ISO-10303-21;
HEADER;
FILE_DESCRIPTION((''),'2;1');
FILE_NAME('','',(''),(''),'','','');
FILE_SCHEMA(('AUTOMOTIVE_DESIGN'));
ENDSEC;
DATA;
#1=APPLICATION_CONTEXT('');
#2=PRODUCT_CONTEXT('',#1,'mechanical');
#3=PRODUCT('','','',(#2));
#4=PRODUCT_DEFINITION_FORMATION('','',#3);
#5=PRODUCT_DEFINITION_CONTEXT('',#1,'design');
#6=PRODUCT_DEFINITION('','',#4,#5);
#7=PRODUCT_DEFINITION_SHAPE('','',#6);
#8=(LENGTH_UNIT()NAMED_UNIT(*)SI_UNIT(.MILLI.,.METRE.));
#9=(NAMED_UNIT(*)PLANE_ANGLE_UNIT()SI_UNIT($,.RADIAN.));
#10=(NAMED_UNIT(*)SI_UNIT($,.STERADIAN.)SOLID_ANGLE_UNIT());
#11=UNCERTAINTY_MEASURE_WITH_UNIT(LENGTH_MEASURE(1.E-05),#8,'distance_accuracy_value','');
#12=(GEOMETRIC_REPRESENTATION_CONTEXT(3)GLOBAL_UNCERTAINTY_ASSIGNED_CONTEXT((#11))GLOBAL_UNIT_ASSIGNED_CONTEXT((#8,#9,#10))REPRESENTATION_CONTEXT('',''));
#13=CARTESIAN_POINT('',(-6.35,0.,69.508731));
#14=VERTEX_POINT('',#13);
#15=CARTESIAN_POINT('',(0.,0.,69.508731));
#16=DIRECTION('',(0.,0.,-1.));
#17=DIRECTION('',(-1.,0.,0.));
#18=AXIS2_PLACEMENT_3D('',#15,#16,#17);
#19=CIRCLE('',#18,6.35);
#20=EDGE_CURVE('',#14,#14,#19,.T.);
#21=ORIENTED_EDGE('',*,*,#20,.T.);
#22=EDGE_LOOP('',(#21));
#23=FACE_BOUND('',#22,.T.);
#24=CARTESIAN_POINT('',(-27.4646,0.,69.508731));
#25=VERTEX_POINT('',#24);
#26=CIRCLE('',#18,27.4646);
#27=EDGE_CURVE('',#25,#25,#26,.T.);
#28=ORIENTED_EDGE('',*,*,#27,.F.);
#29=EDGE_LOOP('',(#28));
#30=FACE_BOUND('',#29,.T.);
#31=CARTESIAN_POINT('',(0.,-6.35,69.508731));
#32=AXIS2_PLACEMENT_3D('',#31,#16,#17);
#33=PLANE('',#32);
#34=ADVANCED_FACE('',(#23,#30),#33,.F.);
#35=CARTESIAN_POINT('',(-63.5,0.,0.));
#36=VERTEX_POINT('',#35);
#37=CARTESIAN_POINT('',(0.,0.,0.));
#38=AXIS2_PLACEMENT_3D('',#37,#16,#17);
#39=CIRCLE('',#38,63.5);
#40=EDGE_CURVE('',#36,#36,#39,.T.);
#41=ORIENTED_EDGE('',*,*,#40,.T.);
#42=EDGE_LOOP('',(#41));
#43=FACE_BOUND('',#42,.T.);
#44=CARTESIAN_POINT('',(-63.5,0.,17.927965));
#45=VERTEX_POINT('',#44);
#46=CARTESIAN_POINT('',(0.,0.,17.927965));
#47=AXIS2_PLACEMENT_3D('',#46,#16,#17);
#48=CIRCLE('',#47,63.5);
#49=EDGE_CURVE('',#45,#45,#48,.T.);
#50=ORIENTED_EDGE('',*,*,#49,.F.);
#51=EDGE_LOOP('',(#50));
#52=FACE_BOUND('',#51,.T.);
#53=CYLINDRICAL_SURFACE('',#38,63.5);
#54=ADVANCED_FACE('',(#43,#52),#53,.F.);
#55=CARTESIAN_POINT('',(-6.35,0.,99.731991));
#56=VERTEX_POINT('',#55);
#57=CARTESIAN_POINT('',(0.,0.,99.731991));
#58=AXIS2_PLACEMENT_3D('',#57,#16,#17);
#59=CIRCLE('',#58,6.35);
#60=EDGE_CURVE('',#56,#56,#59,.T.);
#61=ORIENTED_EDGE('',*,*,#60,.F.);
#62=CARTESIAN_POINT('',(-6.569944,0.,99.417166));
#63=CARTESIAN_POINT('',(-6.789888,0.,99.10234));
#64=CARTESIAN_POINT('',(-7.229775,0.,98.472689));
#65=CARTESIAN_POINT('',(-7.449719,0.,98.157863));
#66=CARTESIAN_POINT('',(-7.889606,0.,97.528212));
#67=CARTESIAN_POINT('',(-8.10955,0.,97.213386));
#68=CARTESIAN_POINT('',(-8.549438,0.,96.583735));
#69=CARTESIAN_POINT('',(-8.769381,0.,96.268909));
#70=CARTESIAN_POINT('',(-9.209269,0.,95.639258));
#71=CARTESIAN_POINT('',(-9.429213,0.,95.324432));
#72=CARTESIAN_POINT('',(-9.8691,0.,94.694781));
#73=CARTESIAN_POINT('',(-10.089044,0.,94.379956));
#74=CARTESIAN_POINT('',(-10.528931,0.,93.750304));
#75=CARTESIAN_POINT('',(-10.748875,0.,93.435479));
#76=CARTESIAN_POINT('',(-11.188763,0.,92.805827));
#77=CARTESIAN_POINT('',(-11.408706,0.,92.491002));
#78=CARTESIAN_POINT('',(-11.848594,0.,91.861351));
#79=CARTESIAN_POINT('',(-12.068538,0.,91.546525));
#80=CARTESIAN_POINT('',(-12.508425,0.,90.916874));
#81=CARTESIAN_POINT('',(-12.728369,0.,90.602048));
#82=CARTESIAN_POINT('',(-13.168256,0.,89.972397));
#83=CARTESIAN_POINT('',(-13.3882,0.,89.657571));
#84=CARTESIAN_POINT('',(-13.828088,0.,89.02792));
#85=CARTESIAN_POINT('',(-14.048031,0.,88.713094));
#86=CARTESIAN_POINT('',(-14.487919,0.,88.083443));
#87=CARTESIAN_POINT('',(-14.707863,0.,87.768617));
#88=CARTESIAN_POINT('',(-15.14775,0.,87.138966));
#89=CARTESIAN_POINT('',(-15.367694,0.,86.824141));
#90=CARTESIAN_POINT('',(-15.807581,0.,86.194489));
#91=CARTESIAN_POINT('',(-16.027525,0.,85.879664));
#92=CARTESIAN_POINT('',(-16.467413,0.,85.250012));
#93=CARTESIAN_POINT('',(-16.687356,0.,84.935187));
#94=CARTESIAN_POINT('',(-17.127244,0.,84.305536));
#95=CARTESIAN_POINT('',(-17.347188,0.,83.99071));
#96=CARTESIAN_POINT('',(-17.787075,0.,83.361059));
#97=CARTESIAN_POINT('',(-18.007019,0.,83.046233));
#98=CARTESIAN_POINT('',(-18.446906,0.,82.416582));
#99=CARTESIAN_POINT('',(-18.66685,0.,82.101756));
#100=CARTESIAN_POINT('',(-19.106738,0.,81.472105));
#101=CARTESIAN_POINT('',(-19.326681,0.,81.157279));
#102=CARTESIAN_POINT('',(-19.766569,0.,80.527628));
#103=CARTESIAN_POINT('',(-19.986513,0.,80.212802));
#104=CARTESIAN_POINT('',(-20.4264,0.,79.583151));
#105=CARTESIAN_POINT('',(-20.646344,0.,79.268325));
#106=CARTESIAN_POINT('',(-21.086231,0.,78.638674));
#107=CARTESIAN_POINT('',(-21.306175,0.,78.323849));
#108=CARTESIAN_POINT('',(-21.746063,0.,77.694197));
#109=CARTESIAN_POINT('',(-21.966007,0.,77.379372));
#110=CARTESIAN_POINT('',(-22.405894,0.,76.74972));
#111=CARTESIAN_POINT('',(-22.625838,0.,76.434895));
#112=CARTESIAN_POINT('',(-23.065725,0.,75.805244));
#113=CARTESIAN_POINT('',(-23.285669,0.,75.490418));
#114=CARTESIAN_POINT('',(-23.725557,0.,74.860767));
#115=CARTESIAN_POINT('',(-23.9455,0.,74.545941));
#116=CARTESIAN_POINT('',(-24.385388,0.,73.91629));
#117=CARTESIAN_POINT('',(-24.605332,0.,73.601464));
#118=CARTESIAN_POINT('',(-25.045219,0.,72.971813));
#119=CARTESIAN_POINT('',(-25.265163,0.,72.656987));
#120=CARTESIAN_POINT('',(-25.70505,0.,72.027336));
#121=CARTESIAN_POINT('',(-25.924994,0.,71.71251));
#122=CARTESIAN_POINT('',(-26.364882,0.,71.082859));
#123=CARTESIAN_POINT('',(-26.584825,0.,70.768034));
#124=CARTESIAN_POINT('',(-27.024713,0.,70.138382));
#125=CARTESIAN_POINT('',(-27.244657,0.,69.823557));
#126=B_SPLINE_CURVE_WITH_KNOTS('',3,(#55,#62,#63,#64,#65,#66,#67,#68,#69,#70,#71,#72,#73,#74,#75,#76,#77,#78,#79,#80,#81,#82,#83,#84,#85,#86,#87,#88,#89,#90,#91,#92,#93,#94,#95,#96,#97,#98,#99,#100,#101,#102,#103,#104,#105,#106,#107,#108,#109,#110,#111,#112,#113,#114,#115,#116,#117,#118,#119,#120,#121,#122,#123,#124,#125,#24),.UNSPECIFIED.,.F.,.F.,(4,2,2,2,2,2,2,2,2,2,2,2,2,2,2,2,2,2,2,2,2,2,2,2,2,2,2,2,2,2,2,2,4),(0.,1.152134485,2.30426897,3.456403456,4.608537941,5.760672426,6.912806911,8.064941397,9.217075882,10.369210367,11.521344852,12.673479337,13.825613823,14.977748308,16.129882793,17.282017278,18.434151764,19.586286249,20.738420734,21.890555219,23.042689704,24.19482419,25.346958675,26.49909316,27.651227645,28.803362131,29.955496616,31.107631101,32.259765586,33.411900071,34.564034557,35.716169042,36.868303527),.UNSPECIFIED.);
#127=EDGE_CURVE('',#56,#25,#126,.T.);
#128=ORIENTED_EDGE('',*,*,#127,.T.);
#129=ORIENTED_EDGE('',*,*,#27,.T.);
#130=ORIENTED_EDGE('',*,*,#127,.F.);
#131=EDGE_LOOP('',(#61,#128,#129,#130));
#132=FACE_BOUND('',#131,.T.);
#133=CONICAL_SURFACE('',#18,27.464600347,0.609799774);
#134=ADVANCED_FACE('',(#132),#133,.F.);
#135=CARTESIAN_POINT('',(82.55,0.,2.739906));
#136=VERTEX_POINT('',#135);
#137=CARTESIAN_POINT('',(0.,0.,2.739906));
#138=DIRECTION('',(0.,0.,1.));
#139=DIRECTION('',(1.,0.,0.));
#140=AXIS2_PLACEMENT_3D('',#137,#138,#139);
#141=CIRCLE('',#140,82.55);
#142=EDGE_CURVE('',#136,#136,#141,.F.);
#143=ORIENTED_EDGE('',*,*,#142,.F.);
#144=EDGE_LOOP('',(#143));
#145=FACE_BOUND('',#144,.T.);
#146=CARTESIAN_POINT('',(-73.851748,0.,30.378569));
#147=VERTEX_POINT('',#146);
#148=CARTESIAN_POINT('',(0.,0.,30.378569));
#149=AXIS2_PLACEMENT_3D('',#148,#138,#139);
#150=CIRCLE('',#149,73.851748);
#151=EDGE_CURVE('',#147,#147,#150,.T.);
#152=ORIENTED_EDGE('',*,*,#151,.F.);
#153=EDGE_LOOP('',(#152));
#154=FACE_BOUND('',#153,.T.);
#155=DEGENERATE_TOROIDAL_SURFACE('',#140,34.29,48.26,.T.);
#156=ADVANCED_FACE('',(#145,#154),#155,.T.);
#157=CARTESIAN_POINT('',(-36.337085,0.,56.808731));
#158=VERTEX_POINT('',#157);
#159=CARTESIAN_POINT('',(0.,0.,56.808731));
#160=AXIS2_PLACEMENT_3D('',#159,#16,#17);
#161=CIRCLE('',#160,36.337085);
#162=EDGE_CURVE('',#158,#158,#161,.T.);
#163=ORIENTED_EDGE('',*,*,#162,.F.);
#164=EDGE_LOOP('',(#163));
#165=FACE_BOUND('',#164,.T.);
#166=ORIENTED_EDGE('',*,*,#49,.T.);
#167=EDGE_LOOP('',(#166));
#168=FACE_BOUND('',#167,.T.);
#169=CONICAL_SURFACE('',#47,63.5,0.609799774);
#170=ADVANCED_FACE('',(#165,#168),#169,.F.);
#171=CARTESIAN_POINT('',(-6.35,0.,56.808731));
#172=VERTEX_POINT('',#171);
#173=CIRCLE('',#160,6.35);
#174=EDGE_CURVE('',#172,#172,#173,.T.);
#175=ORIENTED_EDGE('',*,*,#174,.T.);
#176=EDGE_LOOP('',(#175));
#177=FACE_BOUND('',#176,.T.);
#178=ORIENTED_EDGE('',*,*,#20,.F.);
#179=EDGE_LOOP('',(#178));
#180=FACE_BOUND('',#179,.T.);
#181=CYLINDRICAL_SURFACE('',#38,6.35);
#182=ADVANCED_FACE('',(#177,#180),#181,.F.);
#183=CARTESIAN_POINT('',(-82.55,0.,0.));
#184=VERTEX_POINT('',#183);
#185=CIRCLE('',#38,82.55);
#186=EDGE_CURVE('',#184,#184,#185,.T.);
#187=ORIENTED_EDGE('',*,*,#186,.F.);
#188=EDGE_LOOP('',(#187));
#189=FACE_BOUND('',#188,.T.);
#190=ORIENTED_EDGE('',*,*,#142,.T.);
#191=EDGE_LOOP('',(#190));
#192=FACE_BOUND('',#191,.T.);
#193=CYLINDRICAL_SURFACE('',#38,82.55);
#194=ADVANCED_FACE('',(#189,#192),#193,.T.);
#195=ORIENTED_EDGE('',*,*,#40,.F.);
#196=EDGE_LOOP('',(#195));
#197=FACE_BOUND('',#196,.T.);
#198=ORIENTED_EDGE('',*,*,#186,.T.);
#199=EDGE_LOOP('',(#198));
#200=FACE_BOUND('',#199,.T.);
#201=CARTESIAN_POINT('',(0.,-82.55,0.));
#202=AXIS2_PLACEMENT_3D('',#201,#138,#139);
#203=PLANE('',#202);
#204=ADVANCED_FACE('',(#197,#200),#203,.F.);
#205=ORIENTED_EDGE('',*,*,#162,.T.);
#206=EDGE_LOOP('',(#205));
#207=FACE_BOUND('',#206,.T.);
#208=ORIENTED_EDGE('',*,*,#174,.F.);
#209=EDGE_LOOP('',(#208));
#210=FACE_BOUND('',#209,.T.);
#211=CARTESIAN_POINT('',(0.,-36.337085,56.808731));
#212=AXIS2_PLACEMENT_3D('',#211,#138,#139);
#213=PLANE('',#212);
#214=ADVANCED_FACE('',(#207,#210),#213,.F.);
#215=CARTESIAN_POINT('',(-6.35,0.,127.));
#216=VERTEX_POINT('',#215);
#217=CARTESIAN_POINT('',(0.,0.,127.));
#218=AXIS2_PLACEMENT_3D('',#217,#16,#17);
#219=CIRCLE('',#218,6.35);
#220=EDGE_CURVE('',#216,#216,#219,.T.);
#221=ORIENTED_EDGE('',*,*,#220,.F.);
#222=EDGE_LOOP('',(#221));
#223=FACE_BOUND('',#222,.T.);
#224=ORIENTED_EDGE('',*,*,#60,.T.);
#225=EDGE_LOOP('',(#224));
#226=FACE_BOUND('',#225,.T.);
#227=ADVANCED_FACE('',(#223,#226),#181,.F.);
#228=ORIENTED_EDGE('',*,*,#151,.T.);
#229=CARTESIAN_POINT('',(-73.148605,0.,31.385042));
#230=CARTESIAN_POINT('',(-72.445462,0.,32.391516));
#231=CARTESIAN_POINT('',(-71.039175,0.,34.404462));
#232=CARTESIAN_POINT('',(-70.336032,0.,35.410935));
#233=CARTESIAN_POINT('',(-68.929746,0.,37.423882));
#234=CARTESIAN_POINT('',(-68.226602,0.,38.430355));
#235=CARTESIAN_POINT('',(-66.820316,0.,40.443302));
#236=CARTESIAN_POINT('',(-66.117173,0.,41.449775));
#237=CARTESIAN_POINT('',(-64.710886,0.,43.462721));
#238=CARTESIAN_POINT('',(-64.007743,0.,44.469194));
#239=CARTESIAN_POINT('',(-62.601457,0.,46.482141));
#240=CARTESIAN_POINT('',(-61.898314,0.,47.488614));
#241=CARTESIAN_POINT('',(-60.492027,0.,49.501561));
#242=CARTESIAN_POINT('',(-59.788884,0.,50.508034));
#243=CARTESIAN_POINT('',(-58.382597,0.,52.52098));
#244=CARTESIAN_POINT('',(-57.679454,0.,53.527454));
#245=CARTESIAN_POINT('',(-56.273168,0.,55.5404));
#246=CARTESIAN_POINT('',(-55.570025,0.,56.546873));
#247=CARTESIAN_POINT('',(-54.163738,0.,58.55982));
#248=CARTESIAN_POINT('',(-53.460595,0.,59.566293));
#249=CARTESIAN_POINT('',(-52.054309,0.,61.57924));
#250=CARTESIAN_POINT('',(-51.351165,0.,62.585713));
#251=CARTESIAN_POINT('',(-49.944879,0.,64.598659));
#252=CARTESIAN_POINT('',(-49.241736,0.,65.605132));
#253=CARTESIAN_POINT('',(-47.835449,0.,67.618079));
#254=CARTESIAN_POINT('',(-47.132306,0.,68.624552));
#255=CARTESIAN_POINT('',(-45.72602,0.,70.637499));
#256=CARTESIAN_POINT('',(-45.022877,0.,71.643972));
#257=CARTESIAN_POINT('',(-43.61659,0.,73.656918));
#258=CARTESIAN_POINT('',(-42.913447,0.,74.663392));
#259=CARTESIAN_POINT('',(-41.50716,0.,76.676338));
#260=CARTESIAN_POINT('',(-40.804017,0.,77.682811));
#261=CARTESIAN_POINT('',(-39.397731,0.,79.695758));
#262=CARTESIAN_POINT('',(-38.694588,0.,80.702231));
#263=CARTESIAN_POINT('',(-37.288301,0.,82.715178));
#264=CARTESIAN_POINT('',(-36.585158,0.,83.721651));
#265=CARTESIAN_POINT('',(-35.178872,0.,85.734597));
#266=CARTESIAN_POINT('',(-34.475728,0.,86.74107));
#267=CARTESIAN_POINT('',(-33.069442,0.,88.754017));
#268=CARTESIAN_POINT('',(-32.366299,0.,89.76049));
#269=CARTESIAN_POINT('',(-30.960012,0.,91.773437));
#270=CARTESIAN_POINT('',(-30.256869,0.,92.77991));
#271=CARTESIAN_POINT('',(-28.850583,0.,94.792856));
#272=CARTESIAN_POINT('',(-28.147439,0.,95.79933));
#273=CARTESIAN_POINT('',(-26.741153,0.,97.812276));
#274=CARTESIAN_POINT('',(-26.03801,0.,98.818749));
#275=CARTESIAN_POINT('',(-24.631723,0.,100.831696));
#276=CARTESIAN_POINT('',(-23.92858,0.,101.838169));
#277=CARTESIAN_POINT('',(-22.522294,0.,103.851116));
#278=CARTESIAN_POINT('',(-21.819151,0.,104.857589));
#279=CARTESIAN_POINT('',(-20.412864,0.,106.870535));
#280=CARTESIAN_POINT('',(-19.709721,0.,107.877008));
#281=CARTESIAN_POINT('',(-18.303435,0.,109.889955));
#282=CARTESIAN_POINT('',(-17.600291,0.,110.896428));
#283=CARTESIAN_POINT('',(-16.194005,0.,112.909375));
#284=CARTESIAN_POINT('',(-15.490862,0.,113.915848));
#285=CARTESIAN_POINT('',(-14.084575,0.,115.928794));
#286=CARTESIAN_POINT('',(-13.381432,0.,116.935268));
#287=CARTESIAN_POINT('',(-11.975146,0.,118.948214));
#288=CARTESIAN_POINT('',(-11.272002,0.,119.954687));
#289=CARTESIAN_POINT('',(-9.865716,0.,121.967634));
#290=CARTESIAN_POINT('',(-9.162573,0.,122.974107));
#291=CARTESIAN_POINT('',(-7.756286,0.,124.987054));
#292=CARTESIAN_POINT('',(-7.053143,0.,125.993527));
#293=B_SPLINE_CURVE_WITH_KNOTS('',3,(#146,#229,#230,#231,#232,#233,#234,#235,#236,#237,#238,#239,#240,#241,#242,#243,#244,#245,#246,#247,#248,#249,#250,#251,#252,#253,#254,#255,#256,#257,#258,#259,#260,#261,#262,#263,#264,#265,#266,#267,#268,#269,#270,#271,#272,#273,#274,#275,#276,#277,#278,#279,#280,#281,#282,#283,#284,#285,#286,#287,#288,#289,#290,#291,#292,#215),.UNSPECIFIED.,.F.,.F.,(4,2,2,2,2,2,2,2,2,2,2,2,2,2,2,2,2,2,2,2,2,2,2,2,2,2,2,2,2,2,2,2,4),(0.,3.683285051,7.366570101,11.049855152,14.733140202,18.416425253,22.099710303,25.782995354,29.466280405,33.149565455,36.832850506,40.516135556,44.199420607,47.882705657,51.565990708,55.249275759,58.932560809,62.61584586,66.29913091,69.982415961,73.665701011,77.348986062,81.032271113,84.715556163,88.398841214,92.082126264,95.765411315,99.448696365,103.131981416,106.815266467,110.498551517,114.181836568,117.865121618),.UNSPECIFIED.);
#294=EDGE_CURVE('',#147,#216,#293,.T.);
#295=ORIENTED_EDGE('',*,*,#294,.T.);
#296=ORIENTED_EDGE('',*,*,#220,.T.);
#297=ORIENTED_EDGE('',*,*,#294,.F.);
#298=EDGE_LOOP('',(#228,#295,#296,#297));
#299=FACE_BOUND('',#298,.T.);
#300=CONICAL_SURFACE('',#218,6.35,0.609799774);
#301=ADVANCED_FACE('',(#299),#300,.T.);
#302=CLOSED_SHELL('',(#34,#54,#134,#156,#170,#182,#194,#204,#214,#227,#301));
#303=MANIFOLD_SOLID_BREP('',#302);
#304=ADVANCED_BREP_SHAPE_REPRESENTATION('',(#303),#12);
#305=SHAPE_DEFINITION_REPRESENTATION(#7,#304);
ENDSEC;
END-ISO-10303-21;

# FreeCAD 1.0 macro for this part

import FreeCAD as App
import Part
import Sketcher
from FreeCAD import Vector
Q = App.Units.Quantity


def edges_at(feature, points):
    """Names of the edges that pass closest to the given points."""
    edges = feature.Shape.Edges
    near = lambda p: min(range(len(edges)), key=lambda i: edges[i].distToShape(Part.Vertex(*p))[0])
    return sorted({f"Edge{near(p) + 1}" for p in points})

doc = App.newDocument("Part")
params = doc.addObject("Spreadsheet::Sheet", "Params")
for row, (alias, value) in enumerate([
    ("sketch1_height", "0.5 in"),
    ("sketch1_width", "0.75 in"),
    ("revolution_angle", "360 deg"),
    ("fillet_radius", "1.9 in"),
], start=1):
    params.set(f"A{row}", alias)
    params.set(f"B{row}", "=" + value)
    params.setAlias(f"B{row}", alias)

body = doc.addObject("PartDesign::Body", "Body")

# Sketch on YZ plane
sketch1 = body.newObject("Sketcher::SketchObject", "Sketch")
sketch1.AttachmentSupport = (doc.getObject("YZ_Plane"), [""])
sketch1.MapMode = "FlatFace"
sketch1.addGeometry(Part.LineSegment(Vector(-63.5, 0, 0), Vector(-63.5, 17.927965, 0)), False)
sketch1.addGeometry(Part.LineSegment(Vector(-63.5, 17.927965, 0), Vector(-36.337085, 56.808731, 0)), False)
sketch1.addGeometry(Part.LineSegment(Vector(-36.337085, 56.808731, 0), Vector(-6.35, 56.808731, 0)), False)
sketch1.addGeometry(Part.LineSegment(Vector(-6.35, 56.808731, 0), Vector(-6.35, 69.508731, 0)), False)
sketch1.addGeometry(Part.LineSegment(Vector(-6.35, 69.508731, 0), Vector(-27.4646, 69.508731, 0)), False)
sketch1.addGeometry(Part.LineSegment(Vector(-27.4646, 69.508731, 0), Vector(-6.35, 99.731991, 0)), False)
sketch1.addGeometry(Part.LineSegment(Vector(-6.35, 99.731991, 0), Vector(-6.35, 127, 0)), False)
sketch1.addGeometry(Part.LineSegment(Vector(-6.35, 127, 0), Vector(-82.55, 17.927965, 0)), False)
sketch1.addGeometry(Part.LineSegment(Vector(-82.55, 17.927965, 0), Vector(-82.55, 0, 0)), False)
sketch1.addGeometry(Part.LineSegment(Vector(-82.55, 0, 0), Vector(-63.5, 0, 0)), False)
sketch1.addConstraint(Sketcher.Constraint("Coincident", 0, 2, 1, 1))
sketch1.addConstraint(Sketcher.Constraint("Coincident", 1, 2, 2, 1))
sketch1.addConstraint(Sketcher.Constraint("Coincident", 2, 2, 3, 1))
sketch1.addConstraint(Sketcher.Constraint("Coincident", 3, 2, 4, 1))
sketch1.addConstraint(Sketcher.Constraint("Coincident", 4, 2, 5, 1))
sketch1.addConstraint(Sketcher.Constraint("Coincident", 5, 2, 6, 1))
sketch1.addConstraint(Sketcher.Constraint("Coincident", 6, 2, 7, 1))
sketch1.addConstraint(Sketcher.Constraint("Coincident", 7, 2, 8, 1))
sketch1.addConstraint(Sketcher.Constraint("Coincident", 8, 2, 9, 1))
sketch1.addConstraint(Sketcher.Constraint("Coincident", 9, 2, 0, 1))
sketch1.addConstraint(Sketcher.Constraint("Vertical", 0))
sketch1.addConstraint(Sketcher.Constraint("Horizontal", 2))
sketch1.addConstraint(Sketcher.Constraint("Vertical", 3))
sketch1.addConstraint(Sketcher.Constraint("Horizontal", 4))
sketch1.addConstraint(Sketcher.Constraint("Vertical", 6))
sketch1.addConstraint(Sketcher.Constraint("Vertical", 8))
sketch1.addConstraint(Sketcher.Constraint("Horizontal", 9))
sketch1.addConstraint(Sketcher.Constraint("PointOnObject", 8, 2, -1))
sketch1.addConstraint(Sketcher.Constraint("Parallel", 1, 5))
sketch1.addConstraint(Sketcher.Constraint("Parallel", 5, 7))
sketch1.addConstraint(Sketcher.Constraint("Horizontal", 0, 2, 7, 2))
sketch1.addConstraint(Sketcher.Constraint("Vertical", 3, 2, 5, 2))
sketch1.addConstraint(Sketcher.Constraint("DistanceY", 3, 1, 3, 2, Q("0.5 in")))
sketch1.addConstraint(Sketcher.Constraint("DistanceY", -1, 1, 6, 2, Q("5 in")))
sketch1.addConstraint(Sketcher.Constraint("DistanceX", 7, 2, 2, 2, Q("3 in")))
sketch1.addConstraint(Sketcher.Constraint("DistanceX", 9, 1, 9, 2, Q("0.75 in")))
sketch1.addConstraint(Sketcher.Constraint("DistanceX", 0, 2, -1, 1, Q("2.5 in")))
sketch1.addConstraint(Sketcher.Constraint("DistanceX", 4, 2, 4, 1, Q("21.1146 mm")))
sketch1.addConstraint(Sketcher.Constraint("DistanceY", 6, 1, 6, 2, Q("27.268009 mm")))
sketch1.addConstraint(Sketcher.Constraint("Distance", 7, Q("133.05318 mm")))
sketch1.setExpression("Constraints[22]", "Params.sketch1_height")
sketch1.setExpression("Constraints[25]", "Params.sketch1_width")
revolution = body.newObject("PartDesign::Revolution", "Revolution")
revolution.Profile = sketch1
revolution.ReferenceAxis = (sketch1, ["V_Axis"])
revolution.setExpression("Angle", "Params.revolution_angle")
doc.recompute()

fillet = body.newObject("PartDesign::Fillet", "Fillet")
fillet.Base = (revolution, edges_at(revolution, [(82.55, 0, 17.928)]))
fillet.setExpression("Radius", "Params.fillet_radius")

doc.recompute()
